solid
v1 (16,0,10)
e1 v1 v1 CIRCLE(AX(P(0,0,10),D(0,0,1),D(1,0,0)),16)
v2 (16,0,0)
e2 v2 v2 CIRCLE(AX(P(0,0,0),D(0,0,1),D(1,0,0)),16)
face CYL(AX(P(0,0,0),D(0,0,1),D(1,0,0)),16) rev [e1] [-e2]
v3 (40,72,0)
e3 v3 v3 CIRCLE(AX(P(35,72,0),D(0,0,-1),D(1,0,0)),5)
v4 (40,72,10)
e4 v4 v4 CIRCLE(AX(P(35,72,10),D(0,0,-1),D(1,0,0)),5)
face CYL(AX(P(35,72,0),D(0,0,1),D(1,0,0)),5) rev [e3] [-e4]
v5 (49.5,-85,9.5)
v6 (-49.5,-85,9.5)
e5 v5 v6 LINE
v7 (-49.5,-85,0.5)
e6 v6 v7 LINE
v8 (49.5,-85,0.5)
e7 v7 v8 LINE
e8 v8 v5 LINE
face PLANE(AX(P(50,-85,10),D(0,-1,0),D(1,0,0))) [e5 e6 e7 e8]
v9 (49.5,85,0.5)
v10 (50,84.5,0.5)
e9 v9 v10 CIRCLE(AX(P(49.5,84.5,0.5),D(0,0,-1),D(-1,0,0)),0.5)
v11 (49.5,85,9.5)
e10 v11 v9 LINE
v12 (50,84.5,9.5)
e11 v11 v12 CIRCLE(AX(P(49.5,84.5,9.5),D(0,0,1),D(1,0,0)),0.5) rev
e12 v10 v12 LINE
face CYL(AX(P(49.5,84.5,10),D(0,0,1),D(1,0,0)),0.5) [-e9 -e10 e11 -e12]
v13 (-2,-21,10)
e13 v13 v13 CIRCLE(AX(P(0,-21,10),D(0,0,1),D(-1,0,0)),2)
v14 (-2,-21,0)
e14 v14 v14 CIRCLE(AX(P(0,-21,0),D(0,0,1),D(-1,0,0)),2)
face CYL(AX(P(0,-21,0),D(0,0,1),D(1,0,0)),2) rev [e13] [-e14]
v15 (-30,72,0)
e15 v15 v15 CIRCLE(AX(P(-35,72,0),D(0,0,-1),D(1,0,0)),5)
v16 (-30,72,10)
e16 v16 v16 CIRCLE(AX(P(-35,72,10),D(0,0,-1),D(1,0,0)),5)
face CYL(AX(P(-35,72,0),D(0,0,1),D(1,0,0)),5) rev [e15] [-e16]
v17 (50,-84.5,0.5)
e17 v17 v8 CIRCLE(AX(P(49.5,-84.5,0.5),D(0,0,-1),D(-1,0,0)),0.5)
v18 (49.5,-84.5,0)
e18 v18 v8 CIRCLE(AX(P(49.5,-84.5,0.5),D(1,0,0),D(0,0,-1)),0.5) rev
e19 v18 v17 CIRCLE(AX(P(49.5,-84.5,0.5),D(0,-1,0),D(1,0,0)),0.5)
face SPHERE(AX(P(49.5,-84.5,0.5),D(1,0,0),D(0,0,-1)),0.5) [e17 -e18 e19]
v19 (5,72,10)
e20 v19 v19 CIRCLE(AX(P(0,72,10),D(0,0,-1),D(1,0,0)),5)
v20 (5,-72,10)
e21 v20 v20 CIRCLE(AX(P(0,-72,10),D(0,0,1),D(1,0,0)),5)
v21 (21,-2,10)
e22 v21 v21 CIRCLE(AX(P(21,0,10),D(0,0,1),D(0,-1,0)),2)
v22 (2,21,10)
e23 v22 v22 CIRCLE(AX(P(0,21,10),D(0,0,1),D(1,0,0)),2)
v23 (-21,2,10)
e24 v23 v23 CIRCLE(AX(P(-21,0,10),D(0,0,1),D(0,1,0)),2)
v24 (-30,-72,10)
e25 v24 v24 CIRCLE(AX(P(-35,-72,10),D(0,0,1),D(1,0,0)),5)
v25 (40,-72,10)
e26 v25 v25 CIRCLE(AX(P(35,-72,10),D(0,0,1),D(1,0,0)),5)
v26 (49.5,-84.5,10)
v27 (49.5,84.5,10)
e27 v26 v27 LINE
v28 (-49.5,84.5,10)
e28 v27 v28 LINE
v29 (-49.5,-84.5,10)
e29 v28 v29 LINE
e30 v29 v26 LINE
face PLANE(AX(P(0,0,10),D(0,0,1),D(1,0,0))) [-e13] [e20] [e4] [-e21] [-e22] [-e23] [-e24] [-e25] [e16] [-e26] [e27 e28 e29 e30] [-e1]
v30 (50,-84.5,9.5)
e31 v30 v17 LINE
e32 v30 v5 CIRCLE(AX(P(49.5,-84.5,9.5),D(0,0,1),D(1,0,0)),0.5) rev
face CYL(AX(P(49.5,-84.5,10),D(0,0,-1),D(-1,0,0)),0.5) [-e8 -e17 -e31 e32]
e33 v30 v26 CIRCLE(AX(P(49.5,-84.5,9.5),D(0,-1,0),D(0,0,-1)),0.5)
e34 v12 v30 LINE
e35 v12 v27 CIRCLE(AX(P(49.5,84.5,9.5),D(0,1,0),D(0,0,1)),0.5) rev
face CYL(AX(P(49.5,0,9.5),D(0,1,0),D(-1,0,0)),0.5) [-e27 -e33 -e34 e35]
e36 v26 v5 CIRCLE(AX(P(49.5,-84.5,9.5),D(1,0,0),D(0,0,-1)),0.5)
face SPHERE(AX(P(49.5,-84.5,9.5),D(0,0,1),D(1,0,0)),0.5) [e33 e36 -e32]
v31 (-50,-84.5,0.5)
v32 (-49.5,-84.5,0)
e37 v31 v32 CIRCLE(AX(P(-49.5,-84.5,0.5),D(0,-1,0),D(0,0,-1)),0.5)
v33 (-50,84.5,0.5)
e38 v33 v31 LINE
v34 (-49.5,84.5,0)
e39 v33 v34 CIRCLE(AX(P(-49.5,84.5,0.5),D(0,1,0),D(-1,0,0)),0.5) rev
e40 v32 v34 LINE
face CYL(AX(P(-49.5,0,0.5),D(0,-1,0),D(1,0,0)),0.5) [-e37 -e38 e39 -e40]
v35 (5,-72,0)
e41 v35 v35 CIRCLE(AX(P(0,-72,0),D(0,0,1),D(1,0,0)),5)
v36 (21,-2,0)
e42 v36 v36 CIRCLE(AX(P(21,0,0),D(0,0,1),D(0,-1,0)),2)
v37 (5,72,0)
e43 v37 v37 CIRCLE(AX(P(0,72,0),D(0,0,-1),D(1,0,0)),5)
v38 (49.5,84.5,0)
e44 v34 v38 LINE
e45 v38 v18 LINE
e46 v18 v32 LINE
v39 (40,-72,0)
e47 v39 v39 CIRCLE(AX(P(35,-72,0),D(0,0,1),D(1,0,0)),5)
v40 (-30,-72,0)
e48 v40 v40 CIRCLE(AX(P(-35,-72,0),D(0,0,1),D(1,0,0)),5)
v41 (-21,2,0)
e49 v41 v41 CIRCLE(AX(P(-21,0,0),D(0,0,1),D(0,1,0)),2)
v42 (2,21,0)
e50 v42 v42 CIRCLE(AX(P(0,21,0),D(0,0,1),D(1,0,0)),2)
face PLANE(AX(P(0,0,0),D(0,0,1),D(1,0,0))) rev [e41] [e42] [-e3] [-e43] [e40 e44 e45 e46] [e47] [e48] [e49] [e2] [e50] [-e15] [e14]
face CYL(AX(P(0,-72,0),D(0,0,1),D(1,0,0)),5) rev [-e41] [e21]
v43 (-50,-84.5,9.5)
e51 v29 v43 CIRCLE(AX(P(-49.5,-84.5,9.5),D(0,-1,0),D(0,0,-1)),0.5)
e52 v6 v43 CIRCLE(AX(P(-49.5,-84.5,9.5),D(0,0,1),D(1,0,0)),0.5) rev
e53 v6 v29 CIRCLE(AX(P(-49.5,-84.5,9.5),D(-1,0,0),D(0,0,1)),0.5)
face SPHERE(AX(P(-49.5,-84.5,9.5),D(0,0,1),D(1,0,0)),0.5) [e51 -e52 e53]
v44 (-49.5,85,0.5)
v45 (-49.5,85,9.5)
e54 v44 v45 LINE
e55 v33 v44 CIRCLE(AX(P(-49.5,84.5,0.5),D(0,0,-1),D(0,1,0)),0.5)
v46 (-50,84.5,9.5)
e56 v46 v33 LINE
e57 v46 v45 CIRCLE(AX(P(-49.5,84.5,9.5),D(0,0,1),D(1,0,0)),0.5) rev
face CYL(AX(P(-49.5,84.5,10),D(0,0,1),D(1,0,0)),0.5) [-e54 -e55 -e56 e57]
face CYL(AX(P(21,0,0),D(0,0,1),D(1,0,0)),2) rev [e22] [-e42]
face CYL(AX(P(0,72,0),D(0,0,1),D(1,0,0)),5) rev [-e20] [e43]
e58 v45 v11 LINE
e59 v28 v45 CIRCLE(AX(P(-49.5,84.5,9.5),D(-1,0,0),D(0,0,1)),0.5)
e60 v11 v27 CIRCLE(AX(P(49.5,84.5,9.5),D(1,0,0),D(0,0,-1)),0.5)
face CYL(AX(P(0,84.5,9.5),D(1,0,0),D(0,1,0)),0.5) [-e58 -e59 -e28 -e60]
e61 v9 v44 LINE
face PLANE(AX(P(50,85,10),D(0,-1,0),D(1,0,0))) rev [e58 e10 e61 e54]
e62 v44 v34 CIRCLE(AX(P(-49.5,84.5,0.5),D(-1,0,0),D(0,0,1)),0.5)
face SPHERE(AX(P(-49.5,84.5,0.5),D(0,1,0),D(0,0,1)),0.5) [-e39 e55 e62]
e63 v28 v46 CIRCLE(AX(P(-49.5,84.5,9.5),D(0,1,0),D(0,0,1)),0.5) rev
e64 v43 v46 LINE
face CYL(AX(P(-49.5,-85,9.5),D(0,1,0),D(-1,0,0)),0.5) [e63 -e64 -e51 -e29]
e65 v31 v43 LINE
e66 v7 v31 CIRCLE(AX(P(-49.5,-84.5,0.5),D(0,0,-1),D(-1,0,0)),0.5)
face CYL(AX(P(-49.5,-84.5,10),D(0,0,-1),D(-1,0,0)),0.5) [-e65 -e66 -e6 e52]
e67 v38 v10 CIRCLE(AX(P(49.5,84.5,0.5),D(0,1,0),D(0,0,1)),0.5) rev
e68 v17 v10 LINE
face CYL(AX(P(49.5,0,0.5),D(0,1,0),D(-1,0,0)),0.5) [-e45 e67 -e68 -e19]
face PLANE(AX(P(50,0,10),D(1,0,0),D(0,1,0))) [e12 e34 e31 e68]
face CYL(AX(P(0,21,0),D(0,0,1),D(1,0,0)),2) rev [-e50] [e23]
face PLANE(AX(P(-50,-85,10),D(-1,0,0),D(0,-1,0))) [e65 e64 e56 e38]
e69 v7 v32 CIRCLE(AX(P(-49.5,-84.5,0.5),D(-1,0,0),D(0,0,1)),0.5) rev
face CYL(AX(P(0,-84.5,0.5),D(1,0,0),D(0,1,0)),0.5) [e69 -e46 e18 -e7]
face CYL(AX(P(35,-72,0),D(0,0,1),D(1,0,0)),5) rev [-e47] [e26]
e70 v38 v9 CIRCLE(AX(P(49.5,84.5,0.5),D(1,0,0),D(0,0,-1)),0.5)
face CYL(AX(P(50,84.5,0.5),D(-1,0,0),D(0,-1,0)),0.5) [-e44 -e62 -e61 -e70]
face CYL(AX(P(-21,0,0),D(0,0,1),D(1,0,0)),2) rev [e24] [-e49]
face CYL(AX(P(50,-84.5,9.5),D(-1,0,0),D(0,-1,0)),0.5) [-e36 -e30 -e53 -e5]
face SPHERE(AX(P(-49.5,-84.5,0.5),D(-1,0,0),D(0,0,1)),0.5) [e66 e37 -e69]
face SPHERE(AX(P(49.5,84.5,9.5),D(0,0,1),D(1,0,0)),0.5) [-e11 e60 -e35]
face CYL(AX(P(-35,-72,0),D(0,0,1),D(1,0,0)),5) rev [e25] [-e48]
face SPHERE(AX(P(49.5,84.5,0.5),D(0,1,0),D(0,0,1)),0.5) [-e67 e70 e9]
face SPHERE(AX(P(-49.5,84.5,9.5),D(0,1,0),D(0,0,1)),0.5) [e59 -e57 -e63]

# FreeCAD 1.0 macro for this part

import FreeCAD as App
import Part
import Sketcher

V = App.Vector


def edges_at(feature, points):
    """Names of the edges that pass closest to the given points."""
    edges = feature.Shape.Edges
    near = lambda p: min(range(len(edges)), key=lambda i: edges[i].distToShape(Part.Vertex(*p))[0])
    return sorted({f"Edge{near(p) + 1}" for p in points})

doc = App.newDocument("Part")
body = doc.addObject("PartDesign::Body", "Body")

# Sketch on XY plane
sketch1 = doc.addObject("Sketcher::SketchObject", "Sketch")
body.addObject(sketch1)
sketch1.AttachmentSupport = (doc.XY_Plane, [""])
sketch1.MapMode = "FlatFace"
sketch1.addGeometry(Part.LineSegment(V(-50, -85, 0), V(50, -85, 0)), False)
sketch1.addGeometry(Part.LineSegment(V(50, -85, 0), V(50, 85, 0)), False)
sketch1.addGeometry(Part.LineSegment(V(50, 85, 0), V(-50, 85, 0)), False)
sketch1.addGeometry(Part.LineSegment(V(-50, 85, 0), V(-50, -85, 0)), False)
sketch1.addConstraint(Sketcher.Constraint("Coincident", 0, 2, 1, 1))
sketch1.addConstraint(Sketcher.Constraint("Coincident", 1, 2, 2, 1))
sketch1.addConstraint(Sketcher.Constraint("Coincident", 2, 2, 3, 1))
sketch1.addConstraint(Sketcher.Constraint("Coincident", 3, 2, 0, 1))
sketch1.addConstraint(Sketcher.Constraint("Horizontal", 0))
sketch1.addConstraint(Sketcher.Constraint("Vertical", 1))
sketch1.addConstraint(Sketcher.Constraint("Horizontal", 2))
sketch1.addConstraint(Sketcher.Constraint("Vertical", 3))
sketch1.addConstraint(Sketcher.Constraint("Symmetric", 0, 2, 2, 2, -1, 1))
sketch1.addConstraint(Sketcher.Constraint("DistanceX", 0, 1, 0, 2, 100.0))
sketch1.addConstraint(Sketcher.Constraint("DistanceY", 1, 1, 1, 2, 170.0))
pad1 = doc.addObject("PartDesign::Pad", "Pad")
body.addObject(pad1)
pad1.Profile = sketch1
pad1.Length = 10

# Sketch on XY plane
sketch2 = doc.addObject("Sketcher::SketchObject", "Sketch001")
body.addObject(sketch2)
sketch2.AttachmentSupport = (doc.XY_Plane, [""])
sketch2.MapMode = "FlatFace"
sketch2.AttachmentOffset = App.Placement(V(0, 0, 10), App.Rotation())
sketch2.addGeometry(Part.Circle(V(0, 0, 0), V(0, 0, 1), 16), False)
sketch2.addConstraint(Sketcher.Constraint("Coincident", 0, 3, -1, 1))
sketch2.addConstraint(Sketcher.Constraint("Diameter", 0, 32.0))
pocket1 = doc.addObject("PartDesign::Pocket", "Pocket")
body.addObject(pocket1)
pocket1.Profile = sketch2
pocket1.Length = 10

# Sketch on XY plane
sketch3 = doc.addObject("Sketcher::SketchObject", "Sketch002")
body.addObject(sketch3)
sketch3.AttachmentSupport = (doc.XY_Plane, [""])
sketch3.MapMode = "FlatFace"
sketch3.AttachmentOffset = App.Placement(V(0, 0, 10), App.Rotation())
sketch3.addGeometry(Part.Circle(V(0, -72, 0), V(0, 0, 1), 5), False)
sketch3.addGeometry(Part.Circle(V(35, -72, 0), V(0, 0, 1), 5), False)
sketch3.addGeometry(Part.Circle(V(-35, -72, 0), V(0, 0, 1), 5), False)
sketch3.addConstraint(Sketcher.Constraint("Equal", 0, 1))
sketch3.addConstraint(Sketcher.Constraint("Equal", 1, 2))
sketch3.addConstraint(Sketcher.Constraint("Symmetric", 1, 3, 2, 3, -2))
sketch3.addConstraint(Sketcher.Constraint("PointOnObject", 0, 3, -2))
sketch3.addConstraint(Sketcher.Constraint("Horizontal", 0, 3, 1, 3))
sketch3.addConstraint(Sketcher.Constraint("Diameter", 0, 10.0))
sketch3.addConstraint(Sketcher.Constraint("DistanceY", 0, 3, -1, 1, 72.0))
sketch3.addConstraint(Sketcher.Constraint("DistanceX", -1, 1, 1, 3, 35.0))
pocket2 = doc.addObject("PartDesign::Pocket", "Pocket001")
body.addObject(pocket2)
pocket2.Profile = sketch3
pocket2.Length = 10

# Sketch on XY plane
sketch4 = doc.addObject("Sketcher::SketchObject", "Sketch003")
body.addObject(sketch4)
sketch4.AttachmentSupport = (doc.XY_Plane, [""])
sketch4.MapMode = "FlatFace"
sketch4.AttachmentOffset = App.Placement(V(0, 0, 10), App.Rotation())
sketch4.addGeometry(Part.Circle(V(0, 21, 0), V(0, 0, 1), 2), False)
sketch4.addConstraint(Sketcher.Constraint("PointOnObject", 0, 3, -2))
sketch4.addConstraint(Sketcher.Constraint("Diameter", 0, 4.0))
sketch4.addConstraint(Sketcher.Constraint("DistanceY", -1, 1, 0, 3, 21.0))
pocket3 = doc.addObject("PartDesign::Pocket", "Pocket002")
body.addObject(pocket3)
pocket3.Profile = sketch4
pocket3.Length = 10
doc.recompute()

polarpattern = doc.addObject("PartDesign::PolarPattern", "PolarPattern")
body.addObject(polarpattern)
polarpattern.Originals = [pocket3]
polarpattern.Axis = (doc.Z_Axis, [""])
polarpattern.Angle = 360
polarpattern.Occurrences = 4
body.Tip = polarpattern
doc.recompute()

mirrored = doc.addObject("PartDesign::Mirrored", "Mirrored")
body.addObject(mirrored)
mirrored.Originals = [pocket2]
mirrored.MirrorPlane = (doc.XZ_Plane, [""])
body.Tip = mirrored
doc.recompute()

fillet = doc.addObject("PartDesign::Fillet", "Fillet")
body.addObject(fillet)
fillet.Base = (mirrored, edges_at(mirrored, [
    (50, -85, 5),
    (-50, -85, 5),
    (-50, 85, 5),
    (50, 85, 5),
    (-50, 0, 10),
    (0, -85, 10),
    (50, 0, 10),
    (50, 0, 0),
    (0, -85, 0),
    (-50, 0, 0),
    (0, 85, 0),
    (0, 85, 10),
]))
fillet.Radius = 0.5

doc.recompute()
